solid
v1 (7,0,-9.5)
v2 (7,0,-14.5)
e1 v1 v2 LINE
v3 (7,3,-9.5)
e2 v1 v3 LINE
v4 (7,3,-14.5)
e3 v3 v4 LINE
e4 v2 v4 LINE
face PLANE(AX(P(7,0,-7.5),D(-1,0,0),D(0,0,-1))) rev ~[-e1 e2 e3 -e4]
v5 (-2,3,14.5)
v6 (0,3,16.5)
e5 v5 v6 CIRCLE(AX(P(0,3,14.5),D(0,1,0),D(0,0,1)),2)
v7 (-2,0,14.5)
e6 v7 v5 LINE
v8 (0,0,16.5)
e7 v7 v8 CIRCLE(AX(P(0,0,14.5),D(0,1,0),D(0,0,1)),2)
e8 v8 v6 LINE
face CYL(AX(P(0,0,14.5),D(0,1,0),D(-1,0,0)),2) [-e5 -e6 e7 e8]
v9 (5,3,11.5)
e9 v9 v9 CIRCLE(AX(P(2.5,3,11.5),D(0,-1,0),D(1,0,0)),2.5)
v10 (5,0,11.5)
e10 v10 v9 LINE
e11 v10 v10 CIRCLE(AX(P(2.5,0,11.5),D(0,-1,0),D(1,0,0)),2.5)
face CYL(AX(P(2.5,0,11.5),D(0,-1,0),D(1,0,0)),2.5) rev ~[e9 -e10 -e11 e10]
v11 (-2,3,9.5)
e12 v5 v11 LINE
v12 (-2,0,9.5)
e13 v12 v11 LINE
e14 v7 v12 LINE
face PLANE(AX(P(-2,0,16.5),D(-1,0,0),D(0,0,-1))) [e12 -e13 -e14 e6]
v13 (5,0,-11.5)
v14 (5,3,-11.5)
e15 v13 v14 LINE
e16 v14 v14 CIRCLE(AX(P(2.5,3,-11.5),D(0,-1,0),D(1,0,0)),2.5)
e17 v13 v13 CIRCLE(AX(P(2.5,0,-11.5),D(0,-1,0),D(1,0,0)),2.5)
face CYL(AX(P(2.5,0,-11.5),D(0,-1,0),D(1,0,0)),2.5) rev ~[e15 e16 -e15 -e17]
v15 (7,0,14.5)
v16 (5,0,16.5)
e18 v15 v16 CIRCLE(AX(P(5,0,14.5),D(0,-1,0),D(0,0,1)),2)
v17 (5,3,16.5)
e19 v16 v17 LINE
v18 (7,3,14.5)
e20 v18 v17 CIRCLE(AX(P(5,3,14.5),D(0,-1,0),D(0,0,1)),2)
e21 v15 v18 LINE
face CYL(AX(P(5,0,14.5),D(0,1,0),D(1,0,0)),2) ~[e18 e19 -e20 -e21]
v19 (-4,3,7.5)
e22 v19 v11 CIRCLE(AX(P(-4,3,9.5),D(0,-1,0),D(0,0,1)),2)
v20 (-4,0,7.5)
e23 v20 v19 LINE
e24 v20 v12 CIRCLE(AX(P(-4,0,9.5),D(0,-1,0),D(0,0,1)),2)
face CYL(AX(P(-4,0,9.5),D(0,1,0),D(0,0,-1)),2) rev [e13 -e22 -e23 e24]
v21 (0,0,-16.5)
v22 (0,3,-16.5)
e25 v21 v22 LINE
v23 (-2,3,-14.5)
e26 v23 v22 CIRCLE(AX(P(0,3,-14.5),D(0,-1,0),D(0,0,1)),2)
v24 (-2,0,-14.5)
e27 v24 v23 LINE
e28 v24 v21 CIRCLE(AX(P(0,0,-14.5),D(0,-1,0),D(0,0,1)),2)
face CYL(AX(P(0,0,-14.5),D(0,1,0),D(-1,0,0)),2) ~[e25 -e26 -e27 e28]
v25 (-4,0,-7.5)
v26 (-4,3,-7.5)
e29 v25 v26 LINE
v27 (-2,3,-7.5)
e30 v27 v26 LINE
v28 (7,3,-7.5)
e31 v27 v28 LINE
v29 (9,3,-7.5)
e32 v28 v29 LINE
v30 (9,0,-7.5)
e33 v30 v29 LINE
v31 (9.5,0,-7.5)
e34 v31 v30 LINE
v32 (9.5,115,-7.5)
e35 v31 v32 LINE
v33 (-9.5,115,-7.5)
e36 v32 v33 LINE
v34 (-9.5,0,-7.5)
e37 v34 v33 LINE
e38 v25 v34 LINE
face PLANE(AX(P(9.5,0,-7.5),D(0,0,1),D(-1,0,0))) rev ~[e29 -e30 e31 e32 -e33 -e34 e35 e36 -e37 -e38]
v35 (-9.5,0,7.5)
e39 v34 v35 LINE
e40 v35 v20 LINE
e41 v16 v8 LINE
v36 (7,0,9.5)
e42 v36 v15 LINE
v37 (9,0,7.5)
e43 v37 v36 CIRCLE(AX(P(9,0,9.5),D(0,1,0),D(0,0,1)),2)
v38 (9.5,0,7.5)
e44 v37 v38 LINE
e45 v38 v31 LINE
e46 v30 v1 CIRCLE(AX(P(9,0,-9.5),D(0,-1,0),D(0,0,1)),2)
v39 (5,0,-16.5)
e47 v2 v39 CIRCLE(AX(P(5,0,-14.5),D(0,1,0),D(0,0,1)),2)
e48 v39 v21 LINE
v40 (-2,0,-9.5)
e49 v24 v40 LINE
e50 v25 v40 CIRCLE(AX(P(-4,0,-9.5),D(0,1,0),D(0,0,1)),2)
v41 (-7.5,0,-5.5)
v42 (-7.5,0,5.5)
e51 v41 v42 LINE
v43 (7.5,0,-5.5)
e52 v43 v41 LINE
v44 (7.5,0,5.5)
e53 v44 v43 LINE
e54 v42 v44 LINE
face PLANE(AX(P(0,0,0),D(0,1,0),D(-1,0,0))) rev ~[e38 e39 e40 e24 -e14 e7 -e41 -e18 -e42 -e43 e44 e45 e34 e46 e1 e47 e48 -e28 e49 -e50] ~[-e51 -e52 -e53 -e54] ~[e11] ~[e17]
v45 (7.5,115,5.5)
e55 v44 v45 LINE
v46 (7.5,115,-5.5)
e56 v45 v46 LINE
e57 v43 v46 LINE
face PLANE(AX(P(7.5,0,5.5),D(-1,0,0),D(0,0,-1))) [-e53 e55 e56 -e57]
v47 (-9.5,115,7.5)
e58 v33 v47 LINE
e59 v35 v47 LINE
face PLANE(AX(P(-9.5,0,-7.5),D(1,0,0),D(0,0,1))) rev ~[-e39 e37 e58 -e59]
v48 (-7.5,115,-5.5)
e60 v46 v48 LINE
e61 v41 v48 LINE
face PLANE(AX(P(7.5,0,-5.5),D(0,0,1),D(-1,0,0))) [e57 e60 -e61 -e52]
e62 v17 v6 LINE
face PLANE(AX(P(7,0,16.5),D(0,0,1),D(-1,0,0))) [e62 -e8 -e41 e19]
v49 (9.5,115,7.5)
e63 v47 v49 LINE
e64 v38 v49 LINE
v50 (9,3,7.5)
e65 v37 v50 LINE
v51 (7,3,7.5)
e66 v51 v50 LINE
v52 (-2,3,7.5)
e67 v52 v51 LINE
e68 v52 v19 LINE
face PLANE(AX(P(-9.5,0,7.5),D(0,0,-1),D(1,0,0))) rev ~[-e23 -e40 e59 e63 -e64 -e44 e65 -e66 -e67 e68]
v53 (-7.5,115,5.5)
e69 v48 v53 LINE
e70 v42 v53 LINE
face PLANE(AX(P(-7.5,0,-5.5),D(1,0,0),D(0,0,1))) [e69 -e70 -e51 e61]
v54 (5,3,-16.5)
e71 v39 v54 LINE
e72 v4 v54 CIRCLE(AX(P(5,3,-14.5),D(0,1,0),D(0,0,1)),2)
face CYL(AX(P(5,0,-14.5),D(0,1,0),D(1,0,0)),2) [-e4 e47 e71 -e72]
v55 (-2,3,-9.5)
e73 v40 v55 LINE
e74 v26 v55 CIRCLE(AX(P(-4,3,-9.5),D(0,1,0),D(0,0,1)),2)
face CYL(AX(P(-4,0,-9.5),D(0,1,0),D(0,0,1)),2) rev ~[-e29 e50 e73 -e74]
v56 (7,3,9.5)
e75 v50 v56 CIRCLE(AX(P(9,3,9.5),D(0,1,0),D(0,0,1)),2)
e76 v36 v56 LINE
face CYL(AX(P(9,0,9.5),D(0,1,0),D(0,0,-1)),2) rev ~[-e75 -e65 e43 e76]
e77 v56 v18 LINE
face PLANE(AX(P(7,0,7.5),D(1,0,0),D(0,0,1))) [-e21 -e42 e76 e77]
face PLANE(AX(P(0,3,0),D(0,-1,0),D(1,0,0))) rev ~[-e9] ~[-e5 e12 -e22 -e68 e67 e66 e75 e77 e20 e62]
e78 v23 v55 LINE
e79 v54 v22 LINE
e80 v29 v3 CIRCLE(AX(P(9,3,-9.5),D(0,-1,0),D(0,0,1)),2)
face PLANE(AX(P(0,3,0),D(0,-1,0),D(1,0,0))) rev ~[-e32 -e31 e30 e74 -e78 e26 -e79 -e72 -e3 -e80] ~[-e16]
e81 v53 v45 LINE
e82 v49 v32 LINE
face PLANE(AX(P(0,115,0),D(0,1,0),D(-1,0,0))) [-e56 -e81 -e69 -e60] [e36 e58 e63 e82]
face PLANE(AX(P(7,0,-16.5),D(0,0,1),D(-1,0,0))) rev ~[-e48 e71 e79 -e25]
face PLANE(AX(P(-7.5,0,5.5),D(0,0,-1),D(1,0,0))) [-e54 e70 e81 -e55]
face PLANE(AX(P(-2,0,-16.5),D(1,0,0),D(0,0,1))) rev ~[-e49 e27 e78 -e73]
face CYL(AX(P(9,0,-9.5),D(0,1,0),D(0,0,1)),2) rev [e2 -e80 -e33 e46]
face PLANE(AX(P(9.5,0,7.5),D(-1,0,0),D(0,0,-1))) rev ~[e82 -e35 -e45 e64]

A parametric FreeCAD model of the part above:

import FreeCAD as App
import Part
import Sketcher


def edges_at(feature, points):
    """Names of the edges that pass closest to the given points."""
    edges = feature.Shape.Edges
    near = lambda p: min(range(len(edges)), key=lambda i: edges[i].distToShape(Part.Vertex(*p))[0])
    return sorted({f"Edge{near(p) + 1}" for p in points})


def add_polygon(sketch, points):
    """Adds a closed chain of lines whose ends are joined by coincident constraints."""
    first, n = sketch.GeometryCount, len(points)
    for a, b in zip(points, points[1:] + points[:1]):
        sketch.addGeometry(Part.LineSegment(App.Vector(*a, 0), App.Vector(*b, 0)), False)
    for i in range(n):
        sketch.addConstraint(Sketcher.Constraint("Coincident", first + i, 2, first + (i + 1) % n, 1))

doc = App.newDocument("Part")
params = doc.addObject("Spreadsheet::Sheet", "Params")
for row, (alias, value) in enumerate([
    ("sketch1_width", "19 mm"),
    ("sketch1_width2", "15 mm"),
    ("pad1_length", "115 mm"),
    ("sketch2_diameter", "5 mm"),
    ("sketch2_width", "9 mm"),
    ("pad2_length", "3 mm"),
    ("fillet_radius", "2 mm"),
], start=1):
    params.set(f"A{row}", alias)
    params.set(f"B{row}", "=" + value)
    params.setAlias(f"B{row}", alias)

body = doc.addObject("PartDesign::Body", "Body")

# Sketch on XZ plane
sketch1 = body.newObject("Sketcher::SketchObject", "Sketch")
sketch1.AttachmentSupport = (doc.getObject("XZ_Plane"), [""])
sketch1.MapMode = "FlatFace"
add_polygon(sketch1, [(-10, -8), (-10, 8), (10, 8), (10, -8)])  # lines 0-3
add_polygon(sketch1, [(8, 6), (-8, 6), (-8, -6), (8, -6)])  # lines 4-7
sketch1.addConstraint([
    Sketcher.Constraint("Vertical", 0),
    Sketcher.Constraint("Horizontal", 1),
    Sketcher.Constraint("Vertical", 2),
    Sketcher.Constraint("Horizontal", 3),
    Sketcher.Constraint("Horizontal", 4),
    Sketcher.Constraint("Vertical", 5),
    Sketcher.Constraint("Horizontal", 6),
    Sketcher.Constraint("Vertical", 7),
    Sketcher.Constraint("Symmetric", 0, 2, 2, 2, -1, 1),
    Sketcher.Constraint("Symmetric", 4, 2, 6, 2, -1, 1),
    Sketcher.Constraint("Equal", 6, 0),
    Sketcher.Constraint("DistanceX", 1, 1, 1, 2, 19.0),
    Sketcher.Constraint("DistanceX", 4, 2, 4, 1, 15.0),
    Sketcher.Constraint("DistanceY", 4, 2, 0, 2, 2.0),
])
sketch1.setExpression("Constraints[19]", "Params.sketch1_width")
sketch1.setExpression("Constraints[20]", "Params.sketch1_width2")
pad1 = body.newObject("PartDesign::Pad", "Pad")
pad1.Profile = sketch1
pad1.setExpression("Length", "Params.pad1_length")
pad1.Reversed = True

# Sketch on XZ plane
sketch2 = body.newObject("Sketcher::SketchObject", "Sketch001")
sketch2.AttachmentSupport = (doc.getObject("XZ_Plane"), [""])
sketch2.MapMode = "FlatFace"
add_polygon(sketch2, [(-2, 16.5), (-2, 7.5), (7, 7.5), (7, 16.5)])  # lines 0-3
sketch2.addGeometry(Part.Circle(App.Vector(2.5, 11.5, 0), App.Vector(0, 0, 1), 2.5), False)  # 4
add_polygon(sketch2, [(7, -7.5), (-2, -7.5), (-2, -16.5), (7, -16.5)])  # lines 5-8
sketch2.addGeometry(Part.Circle(App.Vector(2.5, -11.5, 0), App.Vector(0, 0, 1), 2.5), False)  # 9
sketch2.addConstraint([
    Sketcher.Constraint("Vertical", 0),
    Sketcher.Constraint("Horizontal", 1),
    Sketcher.Constraint("Vertical", 2),
    Sketcher.Constraint("Horizontal", 3),
    Sketcher.Constraint("Horizontal", 5),
    Sketcher.Constraint("Vertical", 6),
    Sketcher.Constraint("Horizontal", 7),
    Sketcher.Constraint("Vertical", 8),
    Sketcher.Constraint("Equal", 4, 9),
    Sketcher.Constraint("Symmetric", 4, 3, 9, 3, -1),
    Sketcher.Constraint("Symmetric", 0, 2, 5, 2, -1),
    Sketcher.Constraint("Symmetric", 2, 2, 7, 2, -1),
    Sketcher.Constraint("Equal", 7, 0),
    Sketcher.Constraint("Diameter", 4, 5.0),
    Sketcher.Constraint("DistanceX", 1, 1, 1, 2, 9.0),
    Sketcher.Constraint("DistanceY", 9, 3, 4, 3, 23.0),
    Sketcher.Constraint("DistanceY", 4, 3, 2, 2, 5.0),
    Sketcher.Constraint("DistanceX", 0, 2, 4, 3, 4.5),
    Sketcher.Constraint("DistanceX", 0, 2, -1, 1, 2.0),
])
sketch2.setExpression("Constraints[21]", "Params.sketch2_diameter")
sketch2.setExpression("Constraints[22]", "Params.sketch2_width")
pad2 = body.newObject("PartDesign::Pad", "Pad001")
pad2.Profile = sketch2
pad2.setExpression("Length", "Params.pad2_length")
pad2.Reversed = True
doc.recompute()

fillet = body.newObject("PartDesign::Fillet", "Fillet")
fillet.Base = (pad2, edges_at(pad2, [
    (-2, 1.5, -7.5),
    (-2, 1.5, -16.5),
    (7, 1.5, -16.5),
    (7, 1.5, -7.5),
    (7, 1.5, 7.5),
    (7, 1.5, 16.5),
    (-2, 1.5, 16.5),
    (-2, 1.5, 7.5),
]))
fillet.setExpression("Radius", "Params.fillet_radius")

doc.recompute()
